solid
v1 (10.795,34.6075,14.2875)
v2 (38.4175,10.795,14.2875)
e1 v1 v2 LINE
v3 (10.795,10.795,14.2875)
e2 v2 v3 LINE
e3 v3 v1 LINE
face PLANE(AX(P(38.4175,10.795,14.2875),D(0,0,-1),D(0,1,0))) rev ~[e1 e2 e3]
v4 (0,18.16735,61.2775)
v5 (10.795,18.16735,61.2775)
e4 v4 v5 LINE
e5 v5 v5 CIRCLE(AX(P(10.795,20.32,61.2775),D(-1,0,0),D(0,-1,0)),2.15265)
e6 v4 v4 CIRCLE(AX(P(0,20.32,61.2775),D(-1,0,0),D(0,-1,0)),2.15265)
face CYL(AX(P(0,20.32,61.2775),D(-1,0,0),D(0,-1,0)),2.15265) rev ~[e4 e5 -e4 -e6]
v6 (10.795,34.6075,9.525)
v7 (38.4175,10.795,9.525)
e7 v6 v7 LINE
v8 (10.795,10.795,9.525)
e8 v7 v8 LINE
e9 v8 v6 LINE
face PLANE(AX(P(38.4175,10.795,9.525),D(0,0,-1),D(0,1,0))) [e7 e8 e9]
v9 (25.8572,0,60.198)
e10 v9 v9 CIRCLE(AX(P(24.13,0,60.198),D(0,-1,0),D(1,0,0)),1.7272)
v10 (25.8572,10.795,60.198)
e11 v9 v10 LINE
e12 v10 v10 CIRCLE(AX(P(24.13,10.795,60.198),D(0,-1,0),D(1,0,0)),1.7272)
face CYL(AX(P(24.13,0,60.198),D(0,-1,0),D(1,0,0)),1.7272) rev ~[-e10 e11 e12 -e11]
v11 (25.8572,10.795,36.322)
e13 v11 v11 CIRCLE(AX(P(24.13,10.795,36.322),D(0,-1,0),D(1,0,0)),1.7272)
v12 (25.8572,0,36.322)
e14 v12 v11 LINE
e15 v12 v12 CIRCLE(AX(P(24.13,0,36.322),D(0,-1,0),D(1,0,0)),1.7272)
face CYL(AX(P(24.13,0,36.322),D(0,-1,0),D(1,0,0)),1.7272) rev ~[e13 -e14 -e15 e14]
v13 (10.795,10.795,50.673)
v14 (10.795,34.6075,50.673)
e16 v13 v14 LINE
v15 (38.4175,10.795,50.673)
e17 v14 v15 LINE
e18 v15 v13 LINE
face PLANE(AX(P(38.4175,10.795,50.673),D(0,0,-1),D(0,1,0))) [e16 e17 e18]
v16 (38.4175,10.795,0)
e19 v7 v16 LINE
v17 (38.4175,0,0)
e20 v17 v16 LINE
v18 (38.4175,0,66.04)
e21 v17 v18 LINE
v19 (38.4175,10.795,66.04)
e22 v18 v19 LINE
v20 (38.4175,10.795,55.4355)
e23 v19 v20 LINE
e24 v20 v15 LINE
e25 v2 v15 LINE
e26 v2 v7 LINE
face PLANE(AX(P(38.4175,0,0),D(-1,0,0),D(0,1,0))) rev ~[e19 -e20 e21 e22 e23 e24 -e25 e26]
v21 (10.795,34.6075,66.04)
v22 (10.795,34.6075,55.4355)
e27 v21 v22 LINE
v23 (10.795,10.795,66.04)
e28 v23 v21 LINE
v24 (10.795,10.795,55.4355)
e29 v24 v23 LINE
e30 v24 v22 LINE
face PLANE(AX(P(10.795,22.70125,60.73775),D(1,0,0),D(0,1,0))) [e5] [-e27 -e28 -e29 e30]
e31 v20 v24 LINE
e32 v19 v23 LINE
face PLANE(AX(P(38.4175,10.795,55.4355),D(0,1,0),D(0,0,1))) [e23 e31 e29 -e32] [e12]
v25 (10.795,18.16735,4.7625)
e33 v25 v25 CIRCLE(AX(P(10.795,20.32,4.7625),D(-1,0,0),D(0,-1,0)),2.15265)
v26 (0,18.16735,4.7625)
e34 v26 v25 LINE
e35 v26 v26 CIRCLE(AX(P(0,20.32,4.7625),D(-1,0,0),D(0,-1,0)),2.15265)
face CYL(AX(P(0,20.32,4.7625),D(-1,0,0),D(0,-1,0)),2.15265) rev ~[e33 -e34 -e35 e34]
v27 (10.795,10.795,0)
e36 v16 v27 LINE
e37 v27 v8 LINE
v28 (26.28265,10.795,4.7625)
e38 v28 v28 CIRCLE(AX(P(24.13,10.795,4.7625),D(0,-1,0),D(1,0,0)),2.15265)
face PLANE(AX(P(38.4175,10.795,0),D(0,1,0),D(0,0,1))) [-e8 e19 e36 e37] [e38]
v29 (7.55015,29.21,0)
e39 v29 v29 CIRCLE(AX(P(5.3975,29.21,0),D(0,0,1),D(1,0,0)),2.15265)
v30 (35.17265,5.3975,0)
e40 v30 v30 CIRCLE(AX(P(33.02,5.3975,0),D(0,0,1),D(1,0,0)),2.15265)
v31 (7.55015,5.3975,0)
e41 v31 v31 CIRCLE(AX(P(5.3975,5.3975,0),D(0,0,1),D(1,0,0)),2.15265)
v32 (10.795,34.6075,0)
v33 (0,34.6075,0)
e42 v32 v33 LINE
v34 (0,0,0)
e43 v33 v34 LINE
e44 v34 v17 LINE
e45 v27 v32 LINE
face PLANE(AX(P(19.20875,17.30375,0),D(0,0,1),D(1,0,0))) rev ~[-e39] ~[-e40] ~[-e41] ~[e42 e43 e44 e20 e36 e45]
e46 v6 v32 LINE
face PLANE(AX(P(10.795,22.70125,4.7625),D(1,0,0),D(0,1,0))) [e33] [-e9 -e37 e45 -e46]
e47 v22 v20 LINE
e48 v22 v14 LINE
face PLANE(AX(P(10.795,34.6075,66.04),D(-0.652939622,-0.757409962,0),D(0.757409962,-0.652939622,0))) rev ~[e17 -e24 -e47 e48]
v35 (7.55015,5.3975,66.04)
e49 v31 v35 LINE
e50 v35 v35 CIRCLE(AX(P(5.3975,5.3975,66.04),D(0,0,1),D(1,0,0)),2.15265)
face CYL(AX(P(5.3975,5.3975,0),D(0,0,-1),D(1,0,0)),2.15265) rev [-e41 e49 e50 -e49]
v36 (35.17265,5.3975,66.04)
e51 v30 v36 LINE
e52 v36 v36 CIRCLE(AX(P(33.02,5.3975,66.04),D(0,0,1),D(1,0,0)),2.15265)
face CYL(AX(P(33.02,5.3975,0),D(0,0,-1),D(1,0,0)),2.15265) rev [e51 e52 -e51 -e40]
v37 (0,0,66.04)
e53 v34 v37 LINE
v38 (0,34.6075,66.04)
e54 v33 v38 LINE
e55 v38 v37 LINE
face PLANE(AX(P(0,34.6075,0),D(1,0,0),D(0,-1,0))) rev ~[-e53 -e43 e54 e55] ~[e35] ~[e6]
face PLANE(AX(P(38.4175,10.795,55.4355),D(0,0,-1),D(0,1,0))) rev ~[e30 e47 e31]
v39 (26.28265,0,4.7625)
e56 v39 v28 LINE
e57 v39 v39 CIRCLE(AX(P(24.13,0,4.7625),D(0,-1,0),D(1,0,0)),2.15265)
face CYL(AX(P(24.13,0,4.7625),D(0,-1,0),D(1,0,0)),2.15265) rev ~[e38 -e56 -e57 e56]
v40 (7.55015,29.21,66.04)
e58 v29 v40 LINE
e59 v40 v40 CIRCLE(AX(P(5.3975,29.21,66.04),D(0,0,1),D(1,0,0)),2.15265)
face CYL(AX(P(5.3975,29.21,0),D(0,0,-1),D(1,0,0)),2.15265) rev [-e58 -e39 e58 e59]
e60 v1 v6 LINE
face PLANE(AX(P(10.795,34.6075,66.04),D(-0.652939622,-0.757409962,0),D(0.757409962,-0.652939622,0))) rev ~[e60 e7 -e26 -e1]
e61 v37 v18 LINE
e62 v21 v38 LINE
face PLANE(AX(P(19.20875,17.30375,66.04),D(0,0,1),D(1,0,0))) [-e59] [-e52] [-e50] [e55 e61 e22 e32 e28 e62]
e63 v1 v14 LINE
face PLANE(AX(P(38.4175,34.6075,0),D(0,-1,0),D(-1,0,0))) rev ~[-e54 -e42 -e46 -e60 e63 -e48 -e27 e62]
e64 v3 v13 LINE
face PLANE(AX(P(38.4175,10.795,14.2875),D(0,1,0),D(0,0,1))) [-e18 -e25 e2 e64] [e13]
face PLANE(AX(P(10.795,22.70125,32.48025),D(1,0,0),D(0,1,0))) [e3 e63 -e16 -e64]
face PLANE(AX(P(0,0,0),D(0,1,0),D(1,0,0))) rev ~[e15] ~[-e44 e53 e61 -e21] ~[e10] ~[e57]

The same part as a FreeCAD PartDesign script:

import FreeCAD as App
import Part
import Sketcher
from FreeCAD import Vector
Q = App.Units.Quantity

doc = App.newDocument("Part")
body = doc.addObject("PartDesign::Body", "Body")

# Sketch on XY plane
sketch1 = doc.addObject("Sketcher::SketchObject", "Sketch")
body.addObject(sketch1)
sketch1.AttachmentSupport = (doc.XY_Plane, [""])
sketch1.MapMode = "FlatFace"
sketch1.addGeometry(Part.LineSegment(Vector(0, 34.6, 0), Vector(0, 0, 0)), False)
sketch1.addGeometry(Part.LineSegment(Vector(0, 0, 0), Vector(38.4, 0, 0)), False)
sketch1.addGeometry(Part.LineSegment(Vector(38.4, 0, 0), Vector(38.4, 34.6, 0)), False)
sketch1.addGeometry(Part.LineSegment(Vector(38.4, 34.6, 0), Vector(0, 34.6, 0)), False)
sketch1.addGeometry(Part.Circle(Vector(5.4, 5.4, 0), Vector(0, 0, 1), 2.2), False)
sketch1.addGeometry(Part.Circle(Vector(33, 5.4, 0), Vector(0, 0, 1), 2.2), False)
sketch1.addGeometry(Part.Circle(Vector(5.4, 29.2, 0), Vector(0, 0, 1), 2.2), False)
sketch1.addConstraint(Sketcher.Constraint("Coincident", 0, 2, 1, 1))
sketch1.addConstraint(Sketcher.Constraint("Coincident", 1, 2, 2, 1))
sketch1.addConstraint(Sketcher.Constraint("Coincident", 2, 2, 3, 1))
sketch1.addConstraint(Sketcher.Constraint("Coincident", 3, 2, 0, 1))
sketch1.addConstraint(Sketcher.Constraint("Vertical", 0))
sketch1.addConstraint(Sketcher.Constraint("Horizontal", 1))
sketch1.addConstraint(Sketcher.Constraint("Vertical", 2))
sketch1.addConstraint(Sketcher.Constraint("Horizontal", 3))
sketch1.addConstraint(Sketcher.Constraint("Coincident", 0, 2, -1, 1))
sketch1.addConstraint(Sketcher.Constraint("Equal", 4, 5))
sketch1.addConstraint(Sketcher.Constraint("Equal", 5, 6))
sketch1.addConstraint(Sketcher.Constraint("Horizontal", 4, 3, 5, 3))
sketch1.addConstraint(Sketcher.Constraint("Vertical", 4, 3, 6, 3))
sketch1.addConstraint(Sketcher.Constraint("Diameter", 4, Q("0.1695 in")))
sketch1.addConstraint(Sketcher.Constraint("DistanceX", -1, 1, 5, 3, Q("1.3 in")))
sketch1.addConstraint(Sketcher.Constraint("DistanceX", 4, 3, 1, 2, Q("1.3 in")))
sketch1.addConstraint(Sketcher.Constraint("DistanceY", -1, 1, 6, 3, Q("1.15 in")))
sketch1.addConstraint(Sketcher.Constraint("DistanceY", 5, 3, 2, 2, Q("1.15 in")))
sketch1.addConstraint(Sketcher.Constraint("DistanceX", 1, 1, 1, 2, Q("1.5125 in")))
sketch1.addConstraint(Sketcher.Constraint("DistanceY", 0, 2, 0, 1, Q("1.3625 in")))
pad1 = doc.addObject("PartDesign::Pad", "Pad")
body.addObject(pad1)
pad1.Profile = sketch1
pad1.Length = Q("2.6 in")

# Sketch on XZ plane
sketch2 = doc.addObject("Sketcher::SketchObject", "Sketch001")
body.addObject(sketch2)
sketch2.AttachmentSupport = (doc.XZ_Plane, [""])
sketch2.MapMode = "FlatFace"
sketch2.addGeometry(Part.Circle(Vector(24.1, 60.2, 0), Vector(0, 0, 1), 1.7), False)
sketch2.addGeometry(Part.Circle(Vector(24.1, 36.3, 0), Vector(0, 0, 1), 1.7), False)
sketch2.addGeometry(Part.Circle(Vector(24.1, 4.8, 0), Vector(0, 0, 1), 2.2), False)
sketch2.addConstraint(Sketcher.Constraint("Equal", 0, 1))
sketch2.addConstraint(Sketcher.Constraint("Vertical", 0, 3, 1, 3))
sketch2.addConstraint(Sketcher.Constraint("Vertical", 1, 3, 2, 3))
sketch2.addConstraint(Sketcher.Constraint("Diameter", 0, Q("0.136 in")))
sketch2.addConstraint(Sketcher.Constraint("Diameter", 2, Q("0.1695 in")))
sketch2.addConstraint(Sketcher.Constraint("DistanceX", -1, 1, 0, 3, Q("0.95 in")))
sketch2.addConstraint(Sketcher.Constraint("DistanceY", -1, 1, 0, 3, Q("2.37 in")))
sketch2.addConstraint(Sketcher.Constraint("DistanceY", -1, 1, 1, 3, Q("1.43 in")))
sketch2.addConstraint(Sketcher.Constraint("DistanceY", -1, 1, 2, 3, Q("0.1875 in")))
pocket1 = doc.addObject("PartDesign::Pocket", "Pocket")
body.addObject(pocket1)
pocket1.Profile = sketch2
pocket1.Type = "ThroughAll"

# Sketch on YZ plane
sketch3 = doc.addObject("Sketcher::SketchObject", "Sketch002")
body.addObject(sketch3)
sketch3.AttachmentSupport = (doc.YZ_Plane, [""])
sketch3.MapMode = "FlatFace"
sketch3.addGeometry(Part.Circle(Vector(20.3, 61.3, 0), Vector(0, 0, 1), 2.2), False)
sketch3.addGeometry(Part.Circle(Vector(20.3, 4.8, 0), Vector(0, 0, 1), 2.2), False)
sketch3.addConstraint(Sketcher.Constraint("Equal", 0, 1))
sketch3.addConstraint(Sketcher.Constraint("Vertical", 0, 3, 1, 3))
sketch3.addConstraint(Sketcher.Constraint("Diameter", 0, Q("0.1695 in")))
sketch3.addConstraint(Sketcher.Constraint("DistanceX", -1, 1, 0, 3, Q("0.8 in")))
sketch3.addConstraint(Sketcher.Constraint("DistanceY", -1, 1, 1, 3, Q("0.1875 in")))
sketch3.addConstraint(Sketcher.Constraint("DistanceY", 1, 3, 0, 3, Q("2.225 in")))
pocket2 = doc.addObject("PartDesign::Pocket", "Pocket001")
body.addObject(pocket2)
pocket2.Profile = sketch3
pocket2.Type = "ThroughAll"
pocket2.Reversed = True

# Sketch on XY plane
sketch4 = doc.addObject("Sketcher::SketchObject", "Sketch003")
body.addObject(sketch4)
sketch4.AttachmentSupport = (doc.XY_Plane, [""])
sketch4.MapMode = "FlatFace"
sketch4.AttachmentOffset = App.Placement(Vector(0, 0, 2.6 * 25.4), App.Rotation())
sketch4.addGeometry(Part.LineSegment(Vector(38, 11, 0), Vector(38, 35, 0)), False)
sketch4.addGeometry(Part.LineSegment(Vector(38, 35, 0), Vector(11, 35, 0)), False)
sketch4.addGeometry(Part.LineSegment(Vector(11, 35, 0), Vector(38, 11, 0)), False)
sketch4.addConstraint(Sketcher.Constraint("Coincident", 0, 2, 1, 1))
sketch4.addConstraint(Sketcher.Constraint("Coincident", 1, 2, 2, 1))
sketch4.addConstraint(Sketcher.Constraint("Coincident", 2, 2, 0, 1))
sketch4.addConstraint(Sketcher.Constraint("Vertical", 0))
sketch4.addConstraint(Sketcher.Constraint("Horizontal", 1))
sketch4.addConstraint(Sketcher.Constraint("DistanceY", 0, 1, 0, 2, Q("0.9375 in")))
sketch4.addConstraint(Sketcher.Constraint("DistanceX", 1, 2, 1, 1, Q("1.0875 in")))
sketch4.addConstraint(Sketcher.Constraint("DistanceX", -1, 1, 1, 2, Q("0.425 in")))
sketch4.addConstraint(Sketcher.Constraint("DistanceY", -1, 1, 2, 2, Q("0.425 in")))
pocket3 = doc.addObject("PartDesign::Pocket", "Pocket002")
body.addObject(pocket3)
pocket3.Profile = sketch4
pocket3.Type = "ThroughAll"

# Sketch on YZ plane
sketch5 = doc.addObject("Sketcher::SketchObject", "Sketch004")
body.addObject(sketch5)
sketch5.AttachmentSupport = (doc.YZ_Plane, [""])
sketch5.MapMode = "FlatFace"
sketch5.AttachmentOffset = App.Placement(Vector(0, 0, 1.5125 * 25.4), App.Rotation())
sketch5.addGeometry(Part.LineSegment(Vector(11, 10, 0), Vector(11, 0, 0)), False)
sketch5.addGeometry(Part.LineSegment(Vector(11, 0, 0), Vector(35, 0, 0)), False)
sketch5.addGeometry(Part.LineSegment(Vector(35, 0, 0), Vector(35, 10, 0)), False)
sketch5.addGeometry(Part.LineSegment(Vector(35, 10, 0), Vector(11, 10, 0)), False)
sketch5.addGeometry(Part.LineSegment(Vector(11, 51, 0), Vector(11, 14, 0)), False)
sketch5.addGeometry(Part.LineSegment(Vector(11, 14, 0), Vector(35, 14, 0)), False)
sketch5.addGeometry(Part.LineSegment(Vector(35, 14, 0), Vector(35, 51, 0)), False)
sketch5.addGeometry(Part.LineSegment(Vector(35, 51, 0), Vector(11, 51, 0)), False)
sketch5.addGeometry(Part.LineSegment(Vector(11, 66, 0), Vector(11, 55, 0)), False)
sketch5.addGeometry(Part.LineSegment(Vector(11, 55, 0), Vector(35, 55, 0)), False)
sketch5.addGeometry(Part.LineSegment(Vector(35, 55, 0), Vector(35, 66, 0)), False)
sketch5.addGeometry(Part.LineSegment(Vector(35, 66, 0), Vector(11, 66, 0)), False)
sketch5.addConstraint(Sketcher.Constraint("Coincident", 0, 2, 1, 1))
sketch5.addConstraint(Sketcher.Constraint("Coincident", 1, 2, 2, 1))
sketch5.addConstraint(Sketcher.Constraint("Coincident", 2, 2, 3, 1))
sketch5.addConstraint(Sketcher.Constraint("Coincident", 3, 2, 0, 1))
sketch5.addConstraint(Sketcher.Constraint("Coincident", 4, 2, 5, 1))
sketch5.addConstraint(Sketcher.Constraint("Coincident", 5, 2, 6, 1))
sketch5.addConstraint(Sketcher.Constraint("Coincident", 6, 2, 7, 1))
sketch5.addConstraint(Sketcher.Constraint("Coincident", 7, 2, 4, 1))
sketch5.addConstraint(Sketcher.Constraint("Coincident", 8, 2, 9, 1))
sketch5.addConstraint(Sketcher.Constraint("Coincident", 9, 2, 10, 1))
sketch5.addConstraint(Sketcher.Constraint("Coincident", 10, 2, 11, 1))
sketch5.addConstraint(Sketcher.Constraint("Coincident", 11, 2, 8, 1))
sketch5.addConstraint(Sketcher.Constraint("Vertical", 0))
sketch5.addConstraint(Sketcher.Constraint("Horizontal", 1))
sketch5.addConstraint(Sketcher.Constraint("Vertical", 2))
sketch5.addConstraint(Sketcher.Constraint("Horizontal", 3))
sketch5.addConstraint(Sketcher.Constraint("Vertical", 4))
sketch5.addConstraint(Sketcher.Constraint("Horizontal", 5))
sketch5.addConstraint(Sketcher.Constraint("Vertical", 6))
sketch5.addConstraint(Sketcher.Constraint("Horizontal", 7))
sketch5.addConstraint(Sketcher.Constraint("Vertical", 8))
sketch5.addConstraint(Sketcher.Constraint("Horizontal", 9))
sketch5.addConstraint(Sketcher.Constraint("Vertical", 10))
sketch5.addConstraint(Sketcher.Constraint("Horizontal", 11))
sketch5.addConstraint(Sketcher.Constraint("PointOnObject", 0, 2, -1))
sketch5.addConstraint(Sketcher.Constraint("Vertical", 3, 2, 4, 2))
sketch5.addConstraint(Sketcher.Constraint("Vertical", 2, 2, 5, 2))
sketch5.addConstraint(Sketcher.Constraint("Vertical", 7, 2, 8, 2))
sketch5.addConstraint(Sketcher.Constraint("Vertical", 6, 2, 9, 2))
sketch5.addConstraint(Sketcher.Constraint("DistanceY", -1, 1, 10, 2, Q("2.6 in")))
sketch5.addConstraint(Sketcher.Constraint("DistanceX", 1, 1, 1, 2, Q("0.9375 in")))
sketch5.addConstraint(Sketcher.Constraint("DistanceY", 0, 2, 0, 1, Q("0.375 in")))
sketch5.addConstraint(Sketcher.Constraint("DistanceY", 2, 2, 6, 2, Q("1.62 in")))
sketch5.addConstraint(Sketcher.Constraint("DistanceY", 4, 2, 8, 2, Q("1.62 in")))
sketch5.addConstraint(Sketcher.Constraint("DistanceY", 4, 2, 4, 1, Q("1.4325 in")))
sketch5.addConstraint(Sketcher.Constraint("DistanceX", -1, 1, 0, 2, Q("0.425 in")))
pocket4 = doc.addObject("PartDesign::Pocket", "Pocket003")
body.addObject(pocket4)
pocket4.Profile = sketch5
pocket4.Length = Q("1.0875 in")

doc.recompute()
